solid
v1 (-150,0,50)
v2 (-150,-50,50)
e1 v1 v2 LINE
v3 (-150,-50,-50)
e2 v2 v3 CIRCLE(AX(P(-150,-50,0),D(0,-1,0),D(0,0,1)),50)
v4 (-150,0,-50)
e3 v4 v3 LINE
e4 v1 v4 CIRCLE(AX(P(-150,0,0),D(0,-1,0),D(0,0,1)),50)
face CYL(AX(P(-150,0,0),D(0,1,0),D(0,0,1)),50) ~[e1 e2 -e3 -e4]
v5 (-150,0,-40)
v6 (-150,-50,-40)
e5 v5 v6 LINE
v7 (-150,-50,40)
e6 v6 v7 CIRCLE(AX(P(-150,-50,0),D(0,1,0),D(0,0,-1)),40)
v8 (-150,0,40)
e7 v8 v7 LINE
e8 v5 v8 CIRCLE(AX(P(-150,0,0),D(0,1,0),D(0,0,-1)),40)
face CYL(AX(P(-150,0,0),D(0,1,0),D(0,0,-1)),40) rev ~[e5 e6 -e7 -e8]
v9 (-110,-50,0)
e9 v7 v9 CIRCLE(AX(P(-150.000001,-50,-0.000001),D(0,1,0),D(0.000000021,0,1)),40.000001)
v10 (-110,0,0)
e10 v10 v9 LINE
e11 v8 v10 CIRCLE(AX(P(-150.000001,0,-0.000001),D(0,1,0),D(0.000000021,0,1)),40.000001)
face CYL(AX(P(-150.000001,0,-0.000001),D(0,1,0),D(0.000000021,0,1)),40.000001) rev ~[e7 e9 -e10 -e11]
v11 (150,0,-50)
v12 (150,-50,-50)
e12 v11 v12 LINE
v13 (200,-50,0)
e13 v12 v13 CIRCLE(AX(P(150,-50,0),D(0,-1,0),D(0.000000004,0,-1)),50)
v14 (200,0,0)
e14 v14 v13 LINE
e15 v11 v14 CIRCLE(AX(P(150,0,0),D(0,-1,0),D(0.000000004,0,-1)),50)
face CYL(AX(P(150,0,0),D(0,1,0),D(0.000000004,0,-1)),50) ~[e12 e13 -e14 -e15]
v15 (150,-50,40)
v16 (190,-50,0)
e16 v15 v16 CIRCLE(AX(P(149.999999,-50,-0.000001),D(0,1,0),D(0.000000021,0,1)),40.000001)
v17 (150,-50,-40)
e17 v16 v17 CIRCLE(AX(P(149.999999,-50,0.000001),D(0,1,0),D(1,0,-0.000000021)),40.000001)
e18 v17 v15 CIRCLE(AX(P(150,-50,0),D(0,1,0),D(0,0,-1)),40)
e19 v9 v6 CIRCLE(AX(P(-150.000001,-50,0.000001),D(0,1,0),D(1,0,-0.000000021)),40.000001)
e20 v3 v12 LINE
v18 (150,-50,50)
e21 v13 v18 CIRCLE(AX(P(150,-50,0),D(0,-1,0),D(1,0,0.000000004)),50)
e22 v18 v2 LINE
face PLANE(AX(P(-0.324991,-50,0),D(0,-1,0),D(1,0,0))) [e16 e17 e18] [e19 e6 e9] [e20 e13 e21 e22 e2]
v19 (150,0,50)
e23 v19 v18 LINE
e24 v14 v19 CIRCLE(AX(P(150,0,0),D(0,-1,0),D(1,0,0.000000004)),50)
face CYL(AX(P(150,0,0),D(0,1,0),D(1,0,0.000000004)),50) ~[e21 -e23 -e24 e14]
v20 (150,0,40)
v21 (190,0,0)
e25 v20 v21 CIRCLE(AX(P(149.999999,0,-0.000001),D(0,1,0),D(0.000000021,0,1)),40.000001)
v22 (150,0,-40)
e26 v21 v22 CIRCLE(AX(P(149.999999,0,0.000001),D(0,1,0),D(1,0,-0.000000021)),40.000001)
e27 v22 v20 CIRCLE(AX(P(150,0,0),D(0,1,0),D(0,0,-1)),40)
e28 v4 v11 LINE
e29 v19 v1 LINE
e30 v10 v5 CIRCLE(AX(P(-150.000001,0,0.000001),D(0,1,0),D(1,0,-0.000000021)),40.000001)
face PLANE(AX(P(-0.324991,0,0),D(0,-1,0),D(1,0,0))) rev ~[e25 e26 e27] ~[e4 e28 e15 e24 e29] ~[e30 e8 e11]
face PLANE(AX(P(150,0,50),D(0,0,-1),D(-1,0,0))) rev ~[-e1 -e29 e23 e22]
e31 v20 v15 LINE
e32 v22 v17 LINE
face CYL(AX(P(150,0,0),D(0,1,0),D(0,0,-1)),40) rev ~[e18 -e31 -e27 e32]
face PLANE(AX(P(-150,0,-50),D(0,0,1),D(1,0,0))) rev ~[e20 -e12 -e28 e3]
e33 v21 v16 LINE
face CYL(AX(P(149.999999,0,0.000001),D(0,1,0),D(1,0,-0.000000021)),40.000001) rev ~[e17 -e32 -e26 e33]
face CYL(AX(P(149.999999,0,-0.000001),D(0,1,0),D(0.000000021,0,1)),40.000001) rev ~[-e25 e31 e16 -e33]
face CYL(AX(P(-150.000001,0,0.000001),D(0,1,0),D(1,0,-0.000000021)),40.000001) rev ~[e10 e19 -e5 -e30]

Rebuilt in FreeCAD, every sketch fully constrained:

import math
import FreeCAD as App
import Part
import Sketcher

V = App.Vector
Q = App.Units.Quantity

doc = App.newDocument("Part")
body = doc.addObject("PartDesign::Body", "Body")

# Sketch on XZ plane
sketch1 = doc.addObject("Sketcher::SketchObject", "Sketch")
body.addObject(sketch1)
sketch1.AttachmentSupport = (doc.XZ_Plane, [""])
sketch1.MapMode = "FlatFace"
sketch1.addGeometry([
    Part.LineSegment(V(150, 50, 0), V(-150, 50, 0)),  # 0
    Part.ArcOfCircle(Part.Circle(V(-150, 0, 0), V(0, 0, 1), 50), math.radians(90), math.radians(270)),  # 1
    Part.LineSegment(V(-150, -50, 0), V(150, -50, 0)),  # 2
    Part.ArcOfCircle(Part.Circle(V(150, 0, 0), V(0, 0, 1), 50), math.radians(-90), math.radians(0)),  # 3
    Part.ArcOfCircle(Part.Circle(V(150, 0, 0), V(0, 0, 1), 50), math.radians(0), math.radians(90)),  # 4
    Part.ArcOfCircle(Part.Circle(V(150, 0, 0), V(0, 0, 1), 40), math.radians(90), math.radians(270)),  # 5
    Part.ArcOfCircle(Part.Circle(V(149.999999, -0.000001, 0), V(0, 0, 1), 40.000001), math.radians(0.000001), math.radians(89.999999)),  # 6
    Part.ArcOfCircle(Part.Circle(V(149.999999, 0.000001, 0), V(0, 0, 1), 40.000001), math.radians(-89.999999), math.radians(-0.000001)),  # 7
    Part.ArcOfCircle(Part.Circle(V(-150.000001, -0.000001, 0), V(0, 0, 1), 40.000001), math.radians(0.000001), math.radians(89.999999)),  # 8
    Part.ArcOfCircle(Part.Circle(V(-150.000001, 0.000001, 0), V(0, 0, 1), 40.000001), math.radians(-89.999999), math.radians(-0.000001)),  # 9
    Part.ArcOfCircle(Part.Circle(V(-150, 0, 0), V(0, 0, 1), 40), math.radians(90), math.radians(270)),  # 10
], False)
sketch1.addConstraint([
    Sketcher.Constraint("Tangent", 0, 2, 1, 1),
    Sketcher.Constraint("Tangent", 1, 2, 2, 1),
    Sketcher.Constraint("Tangent", 2, 2, 3, 1),
    Sketcher.Constraint("Tangent", 3, 2, 4, 1),
    Sketcher.Constraint("Tangent", 4, 2, 0, 1),
    Sketcher.Constraint("Tangent", 5, 1, 6, 2),
    Sketcher.Constraint("Tangent", 6, 1, 7, 2),
    Sketcher.Constraint("Tangent", 7, 1, 5, 2),
    Sketcher.Constraint("Tangent", 8, 1, 9, 2),
    Sketcher.Constraint("Tangent", 9, 1, 10, 2),
    Sketcher.Constraint("Tangent", 10, 1, 8, 2),
    Sketcher.Constraint("Horizontal", 0),
    Sketcher.Constraint("Horizontal", 2),
    Sketcher.Constraint("Coincident", 5, 3, 3, 3),
    Sketcher.Constraint("Coincident", 8, 3, 1, 3),
    Sketcher.Constraint("Equal", 1, 3),
    Sketcher.Constraint("Equal", 7, 8),
    Sketcher.Constraint("Symmetric", 1, 3, 3, 3, -1, 1),
    Sketcher.Constraint("PointOnObject", 3, 2, -1),
    Sketcher.Constraint("PointOnObject", 6, 1, -1),
    Sketcher.Constraint("PointOnObject", 8, 1, -1),
    Sketcher.Constraint("Vertical", 4, 2, 5, 1),
    Sketcher.Constraint("Vertical", 5, 1, 7, 1),
    Sketcher.Constraint("Vertical", 1, 2, 9, 1),
    Sketcher.Constraint("Vertical", 9, 1, 10, 1),
    Sketcher.Constraint("Radius", 1, Q("50 mm")),
    Sketcher.Constraint("Radius", 5, Q("40 mm")),
    Sketcher.Constraint("DistanceX", 0, 2, 0, 1, Q("300 mm")),
])
pad1 = doc.addObject("PartDesign::Pad", "Pad")
body.addObject(pad1)
pad1.Profile = sketch1
pad1.Length = 50

doc.recompute()
